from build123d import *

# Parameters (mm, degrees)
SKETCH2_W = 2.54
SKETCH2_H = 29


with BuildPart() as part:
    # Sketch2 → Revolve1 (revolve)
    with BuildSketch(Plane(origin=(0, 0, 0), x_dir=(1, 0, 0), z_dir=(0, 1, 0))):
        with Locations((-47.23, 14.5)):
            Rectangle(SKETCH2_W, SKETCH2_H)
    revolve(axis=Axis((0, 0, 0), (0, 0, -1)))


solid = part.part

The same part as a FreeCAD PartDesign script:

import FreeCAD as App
import Part
import Sketcher

V = App.Vector
Q = App.Units.Quantity

doc = App.newDocument("Part")
params = doc.addObject("Spreadsheet::Sheet", "Params")
for row, (alias, value) in enumerate([
    ("sketch1_height", "29 mm"),
    ("sketch1_width", "2.54 mm"),
    ("revolution_angle", "360 deg"),
], start=1):
    params.set(f"A{row}", alias)
    params.set(f"B{row}", "=" + value)
    params.setAlias(f"B{row}", alias)

body = doc.addObject("PartDesign::Body", "Body")

# Sketch on XZ plane
sketch1 = doc.addObject("Sketcher::SketchObject", "Sketch")
body.addObject(sketch1)
sketch1.AttachmentSupport = (doc.XZ_Plane, [""])
sketch1.MapMode = "FlatFace"
sketch1.addGeometry(Part.LineSegment(V(-48.5, -29, 0), V(-48.5, 0, 0)), False)
sketch1.addGeometry(Part.LineSegment(V(-48.5, 0, 0), V(-45.96, 0, 0)), False)
sketch1.addGeometry(Part.LineSegment(V(-45.96, 0, 0), V(-45.96, -29, 0)), False)
sketch1.addGeometry(Part.LineSegment(V(-45.96, -29, 0), V(-48.5, -29, 0)), False)
sketch1.addConstraint(Sketcher.Constraint("Coincident", 0, 2, 1, 1))
sketch1.addConstraint(Sketcher.Constraint("Coincident", 1, 2, 2, 1))
sketch1.addConstraint(Sketcher.Constraint("Coincident", 2, 2, 3, 1))
sketch1.addConstraint(Sketcher.Constraint("Coincident", 3, 2, 0, 1))
sketch1.addConstraint(Sketcher.Constraint("Vertical", 0))
sketch1.addConstraint(Sketcher.Constraint("Horizontal", 1))
sketch1.addConstraint(Sketcher.Constraint("Vertical", 2))
sketch1.addConstraint(Sketcher.Constraint("Horizontal", 3))
sketch1.addConstraint(Sketcher.Constraint("PointOnObject", 0, 2, -1))
sketch1.addConstraint(Sketcher.Constraint("DistanceY", 0, 1, 0, 2, Q("29 mm")))
sketch1.addConstraint(Sketcher.Constraint("DistanceX", 1, 1, 1, 2, Q("2.54 mm")))
sketch1.addConstraint(Sketcher.Constraint("DistanceX", 0, 2, -1, 1, Q("48.5 mm")))
sketch1.setExpression("Constraints[9]", "Params.sketch1_height")
sketch1.setExpression("Constraints[10]", "Params.sketch1_width")
revolution = doc.addObject("PartDesign::Revolution", "Revolution")
body.addObject(revolution)
revolution.Profile = sketch1
revolution.ReferenceAxis = (sketch1, ["V_Axis"])
revolution.setExpression("Angle", "Params.revolution_angle")

doc.recompute()
